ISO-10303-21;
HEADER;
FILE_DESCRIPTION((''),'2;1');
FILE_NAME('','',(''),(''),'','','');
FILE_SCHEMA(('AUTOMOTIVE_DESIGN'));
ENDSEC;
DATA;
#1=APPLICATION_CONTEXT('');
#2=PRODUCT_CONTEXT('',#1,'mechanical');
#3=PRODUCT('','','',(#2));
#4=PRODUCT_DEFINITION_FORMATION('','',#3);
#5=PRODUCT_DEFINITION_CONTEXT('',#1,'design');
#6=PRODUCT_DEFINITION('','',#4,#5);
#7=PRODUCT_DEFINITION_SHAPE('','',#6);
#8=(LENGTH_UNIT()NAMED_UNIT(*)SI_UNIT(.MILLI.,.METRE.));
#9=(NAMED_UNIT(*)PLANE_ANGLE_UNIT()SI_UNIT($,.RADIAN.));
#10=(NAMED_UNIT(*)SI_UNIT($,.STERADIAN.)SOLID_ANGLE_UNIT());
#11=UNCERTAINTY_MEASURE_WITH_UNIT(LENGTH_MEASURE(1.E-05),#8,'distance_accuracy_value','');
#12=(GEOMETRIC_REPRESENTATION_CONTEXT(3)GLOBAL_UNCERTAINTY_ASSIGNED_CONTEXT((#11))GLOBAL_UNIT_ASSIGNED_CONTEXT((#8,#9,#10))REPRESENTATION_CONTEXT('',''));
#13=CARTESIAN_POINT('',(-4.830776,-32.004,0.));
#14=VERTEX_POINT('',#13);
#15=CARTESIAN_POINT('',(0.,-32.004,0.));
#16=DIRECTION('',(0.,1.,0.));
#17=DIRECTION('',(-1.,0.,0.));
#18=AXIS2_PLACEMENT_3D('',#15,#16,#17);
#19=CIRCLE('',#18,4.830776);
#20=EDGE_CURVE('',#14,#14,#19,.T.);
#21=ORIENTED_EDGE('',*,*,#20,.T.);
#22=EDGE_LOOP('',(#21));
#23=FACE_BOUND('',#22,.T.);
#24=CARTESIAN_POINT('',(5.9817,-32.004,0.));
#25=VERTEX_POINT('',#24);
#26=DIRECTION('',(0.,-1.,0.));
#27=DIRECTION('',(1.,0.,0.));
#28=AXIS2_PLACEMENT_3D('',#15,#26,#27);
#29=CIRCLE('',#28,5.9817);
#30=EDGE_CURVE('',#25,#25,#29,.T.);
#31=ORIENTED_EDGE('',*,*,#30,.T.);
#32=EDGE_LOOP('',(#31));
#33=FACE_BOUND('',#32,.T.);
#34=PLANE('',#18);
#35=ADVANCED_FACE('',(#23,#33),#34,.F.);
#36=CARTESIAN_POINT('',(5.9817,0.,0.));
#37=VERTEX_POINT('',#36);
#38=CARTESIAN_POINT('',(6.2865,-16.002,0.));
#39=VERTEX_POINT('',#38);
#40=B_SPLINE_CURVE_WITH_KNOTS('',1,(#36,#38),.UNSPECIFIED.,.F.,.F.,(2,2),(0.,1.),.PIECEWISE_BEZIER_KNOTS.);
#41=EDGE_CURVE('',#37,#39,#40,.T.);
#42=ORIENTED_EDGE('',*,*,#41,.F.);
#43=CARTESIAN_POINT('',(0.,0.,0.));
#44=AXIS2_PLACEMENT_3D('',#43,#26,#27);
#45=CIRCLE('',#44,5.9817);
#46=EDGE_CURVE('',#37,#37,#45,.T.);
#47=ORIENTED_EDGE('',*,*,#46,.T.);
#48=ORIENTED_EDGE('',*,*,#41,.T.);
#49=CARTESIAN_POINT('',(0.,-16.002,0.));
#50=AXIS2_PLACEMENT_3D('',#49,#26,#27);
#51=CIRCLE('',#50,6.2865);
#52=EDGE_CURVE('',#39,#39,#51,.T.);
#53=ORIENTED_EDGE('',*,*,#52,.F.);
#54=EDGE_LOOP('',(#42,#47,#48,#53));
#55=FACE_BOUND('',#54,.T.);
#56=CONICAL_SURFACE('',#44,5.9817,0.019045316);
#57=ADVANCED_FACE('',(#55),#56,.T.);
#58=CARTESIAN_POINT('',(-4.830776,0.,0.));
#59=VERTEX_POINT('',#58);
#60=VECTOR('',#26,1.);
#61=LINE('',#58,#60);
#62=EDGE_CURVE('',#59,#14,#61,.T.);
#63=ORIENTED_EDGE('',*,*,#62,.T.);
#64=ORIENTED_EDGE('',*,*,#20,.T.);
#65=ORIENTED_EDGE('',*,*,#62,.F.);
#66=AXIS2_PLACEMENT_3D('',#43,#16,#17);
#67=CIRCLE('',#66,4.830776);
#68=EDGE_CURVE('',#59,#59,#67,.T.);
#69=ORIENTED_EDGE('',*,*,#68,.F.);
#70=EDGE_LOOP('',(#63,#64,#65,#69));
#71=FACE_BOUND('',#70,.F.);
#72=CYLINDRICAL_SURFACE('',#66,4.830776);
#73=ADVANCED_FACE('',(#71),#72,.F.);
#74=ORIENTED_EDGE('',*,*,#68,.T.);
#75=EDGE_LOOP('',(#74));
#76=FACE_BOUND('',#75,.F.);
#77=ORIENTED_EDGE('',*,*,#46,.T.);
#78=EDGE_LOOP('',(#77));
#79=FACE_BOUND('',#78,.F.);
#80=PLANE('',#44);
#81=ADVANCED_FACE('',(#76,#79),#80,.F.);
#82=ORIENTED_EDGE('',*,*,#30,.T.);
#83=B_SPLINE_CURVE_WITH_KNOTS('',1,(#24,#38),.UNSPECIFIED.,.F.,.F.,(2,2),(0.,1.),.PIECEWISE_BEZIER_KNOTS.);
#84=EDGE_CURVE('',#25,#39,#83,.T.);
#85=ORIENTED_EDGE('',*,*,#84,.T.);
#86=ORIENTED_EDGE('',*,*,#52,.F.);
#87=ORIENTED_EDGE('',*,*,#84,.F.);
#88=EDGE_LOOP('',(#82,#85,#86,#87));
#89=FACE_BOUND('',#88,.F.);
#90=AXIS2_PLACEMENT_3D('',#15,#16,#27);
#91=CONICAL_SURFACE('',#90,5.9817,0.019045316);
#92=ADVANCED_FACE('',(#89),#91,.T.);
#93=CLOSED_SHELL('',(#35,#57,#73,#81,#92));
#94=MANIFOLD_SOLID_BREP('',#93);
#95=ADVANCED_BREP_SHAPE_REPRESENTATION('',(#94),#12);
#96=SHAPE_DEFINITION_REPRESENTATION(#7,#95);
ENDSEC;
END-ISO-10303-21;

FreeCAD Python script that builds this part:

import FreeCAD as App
import Part
import Sketcher

V = App.Vector
Q = App.Units.Quantity

doc = App.newDocument("Part")
body = doc.addObject("PartDesign::Body", "Body")

sketch1 = body.newObject("Sketcher::SketchObject", "Sketch")
sketch1.AttachmentSupport = (doc.getObject("XZ_Plane"), [""])
sketch1.MapMode = "FlatFace"
sketch1.addGeometry(Part.Circle(V(0, 0, 0), V(0, 0, 1), 6), False)
sketch1.addConstraint(Sketcher.Constraint("Coincident", 0, 3, -1, 1))
sketch1.addConstraint(Sketcher.Constraint("Diameter", 0, Q("0.471 in")))

sketch2 = body.newObject("Sketcher::SketchObject", "Sketch001")
sketch2.AttachmentSupport = (doc.getObject("XZ_Plane"), [""])
sketch2.MapMode = "FlatFace"
sketch2.AttachmentOffset = App.Placement(V(0, 0, 0.63 * 25.4), App.Rotation())
sketch2.addGeometry(Part.Circle(V(0, 0, 0), V(0, 0, 1), 6), False)
sketch2.addConstraint(Sketcher.Constraint("Coincident", 0, 3, -1, 1))
sketch2.addConstraint(Sketcher.Constraint("Diameter", 0, Q("0.495 in")))

additiveloft = body.newObject("PartDesign::AdditiveLoft", "AdditiveLoft")
additiveloft.Profile = sketch1
additiveloft.Sections = [sketch2]
body2 = doc.addObject("PartDesign::Body", "Body001")
doc.recompute()

body2.BaseFeature = body
doc.recompute()

mirroring = doc.addObject("Part::Mirroring", "Mirroring")
mirroring.Source = body
mirroring.Base = V(0, -16.002, 0)
mirroring.Normal = V(0, -1, 0)
body3 = doc.addObject("PartDesign::Body", "Body002")
body3.BaseFeature = mirroring
boolean = body2.newObject("PartDesign::Boolean", "Boolean")
boolean.Type = "Fuse"
boolean.addObjects([body3])
doc.recompute()

sketch3 = body2.newObject("Sketcher::SketchObject", "Sketch002")
sketch3.AttachmentSupport = (doc.getObject("XZ_Plane001"), [""])
sketch3.MapMode = "FlatFace"
sketch3.addGeometry(Part.Circle(V(0, 0, 0), V(0, 0, 1), 4.8), False)
sketch3.addConstraint(Sketcher.Constraint("Coincident", 0, 3, -1, 1))
sketch3.addConstraint(Sketcher.Constraint("Diameter", 0, Q("9.661552 mm")))
pocket1 = body2.newObject("PartDesign::Pocket", "Pocket")
pocket1.Profile = sketch3
pocket1.Length = Q("2 in")
pocket1.Reversed = True
mirroring.Visibility = False

doc.recompute()
